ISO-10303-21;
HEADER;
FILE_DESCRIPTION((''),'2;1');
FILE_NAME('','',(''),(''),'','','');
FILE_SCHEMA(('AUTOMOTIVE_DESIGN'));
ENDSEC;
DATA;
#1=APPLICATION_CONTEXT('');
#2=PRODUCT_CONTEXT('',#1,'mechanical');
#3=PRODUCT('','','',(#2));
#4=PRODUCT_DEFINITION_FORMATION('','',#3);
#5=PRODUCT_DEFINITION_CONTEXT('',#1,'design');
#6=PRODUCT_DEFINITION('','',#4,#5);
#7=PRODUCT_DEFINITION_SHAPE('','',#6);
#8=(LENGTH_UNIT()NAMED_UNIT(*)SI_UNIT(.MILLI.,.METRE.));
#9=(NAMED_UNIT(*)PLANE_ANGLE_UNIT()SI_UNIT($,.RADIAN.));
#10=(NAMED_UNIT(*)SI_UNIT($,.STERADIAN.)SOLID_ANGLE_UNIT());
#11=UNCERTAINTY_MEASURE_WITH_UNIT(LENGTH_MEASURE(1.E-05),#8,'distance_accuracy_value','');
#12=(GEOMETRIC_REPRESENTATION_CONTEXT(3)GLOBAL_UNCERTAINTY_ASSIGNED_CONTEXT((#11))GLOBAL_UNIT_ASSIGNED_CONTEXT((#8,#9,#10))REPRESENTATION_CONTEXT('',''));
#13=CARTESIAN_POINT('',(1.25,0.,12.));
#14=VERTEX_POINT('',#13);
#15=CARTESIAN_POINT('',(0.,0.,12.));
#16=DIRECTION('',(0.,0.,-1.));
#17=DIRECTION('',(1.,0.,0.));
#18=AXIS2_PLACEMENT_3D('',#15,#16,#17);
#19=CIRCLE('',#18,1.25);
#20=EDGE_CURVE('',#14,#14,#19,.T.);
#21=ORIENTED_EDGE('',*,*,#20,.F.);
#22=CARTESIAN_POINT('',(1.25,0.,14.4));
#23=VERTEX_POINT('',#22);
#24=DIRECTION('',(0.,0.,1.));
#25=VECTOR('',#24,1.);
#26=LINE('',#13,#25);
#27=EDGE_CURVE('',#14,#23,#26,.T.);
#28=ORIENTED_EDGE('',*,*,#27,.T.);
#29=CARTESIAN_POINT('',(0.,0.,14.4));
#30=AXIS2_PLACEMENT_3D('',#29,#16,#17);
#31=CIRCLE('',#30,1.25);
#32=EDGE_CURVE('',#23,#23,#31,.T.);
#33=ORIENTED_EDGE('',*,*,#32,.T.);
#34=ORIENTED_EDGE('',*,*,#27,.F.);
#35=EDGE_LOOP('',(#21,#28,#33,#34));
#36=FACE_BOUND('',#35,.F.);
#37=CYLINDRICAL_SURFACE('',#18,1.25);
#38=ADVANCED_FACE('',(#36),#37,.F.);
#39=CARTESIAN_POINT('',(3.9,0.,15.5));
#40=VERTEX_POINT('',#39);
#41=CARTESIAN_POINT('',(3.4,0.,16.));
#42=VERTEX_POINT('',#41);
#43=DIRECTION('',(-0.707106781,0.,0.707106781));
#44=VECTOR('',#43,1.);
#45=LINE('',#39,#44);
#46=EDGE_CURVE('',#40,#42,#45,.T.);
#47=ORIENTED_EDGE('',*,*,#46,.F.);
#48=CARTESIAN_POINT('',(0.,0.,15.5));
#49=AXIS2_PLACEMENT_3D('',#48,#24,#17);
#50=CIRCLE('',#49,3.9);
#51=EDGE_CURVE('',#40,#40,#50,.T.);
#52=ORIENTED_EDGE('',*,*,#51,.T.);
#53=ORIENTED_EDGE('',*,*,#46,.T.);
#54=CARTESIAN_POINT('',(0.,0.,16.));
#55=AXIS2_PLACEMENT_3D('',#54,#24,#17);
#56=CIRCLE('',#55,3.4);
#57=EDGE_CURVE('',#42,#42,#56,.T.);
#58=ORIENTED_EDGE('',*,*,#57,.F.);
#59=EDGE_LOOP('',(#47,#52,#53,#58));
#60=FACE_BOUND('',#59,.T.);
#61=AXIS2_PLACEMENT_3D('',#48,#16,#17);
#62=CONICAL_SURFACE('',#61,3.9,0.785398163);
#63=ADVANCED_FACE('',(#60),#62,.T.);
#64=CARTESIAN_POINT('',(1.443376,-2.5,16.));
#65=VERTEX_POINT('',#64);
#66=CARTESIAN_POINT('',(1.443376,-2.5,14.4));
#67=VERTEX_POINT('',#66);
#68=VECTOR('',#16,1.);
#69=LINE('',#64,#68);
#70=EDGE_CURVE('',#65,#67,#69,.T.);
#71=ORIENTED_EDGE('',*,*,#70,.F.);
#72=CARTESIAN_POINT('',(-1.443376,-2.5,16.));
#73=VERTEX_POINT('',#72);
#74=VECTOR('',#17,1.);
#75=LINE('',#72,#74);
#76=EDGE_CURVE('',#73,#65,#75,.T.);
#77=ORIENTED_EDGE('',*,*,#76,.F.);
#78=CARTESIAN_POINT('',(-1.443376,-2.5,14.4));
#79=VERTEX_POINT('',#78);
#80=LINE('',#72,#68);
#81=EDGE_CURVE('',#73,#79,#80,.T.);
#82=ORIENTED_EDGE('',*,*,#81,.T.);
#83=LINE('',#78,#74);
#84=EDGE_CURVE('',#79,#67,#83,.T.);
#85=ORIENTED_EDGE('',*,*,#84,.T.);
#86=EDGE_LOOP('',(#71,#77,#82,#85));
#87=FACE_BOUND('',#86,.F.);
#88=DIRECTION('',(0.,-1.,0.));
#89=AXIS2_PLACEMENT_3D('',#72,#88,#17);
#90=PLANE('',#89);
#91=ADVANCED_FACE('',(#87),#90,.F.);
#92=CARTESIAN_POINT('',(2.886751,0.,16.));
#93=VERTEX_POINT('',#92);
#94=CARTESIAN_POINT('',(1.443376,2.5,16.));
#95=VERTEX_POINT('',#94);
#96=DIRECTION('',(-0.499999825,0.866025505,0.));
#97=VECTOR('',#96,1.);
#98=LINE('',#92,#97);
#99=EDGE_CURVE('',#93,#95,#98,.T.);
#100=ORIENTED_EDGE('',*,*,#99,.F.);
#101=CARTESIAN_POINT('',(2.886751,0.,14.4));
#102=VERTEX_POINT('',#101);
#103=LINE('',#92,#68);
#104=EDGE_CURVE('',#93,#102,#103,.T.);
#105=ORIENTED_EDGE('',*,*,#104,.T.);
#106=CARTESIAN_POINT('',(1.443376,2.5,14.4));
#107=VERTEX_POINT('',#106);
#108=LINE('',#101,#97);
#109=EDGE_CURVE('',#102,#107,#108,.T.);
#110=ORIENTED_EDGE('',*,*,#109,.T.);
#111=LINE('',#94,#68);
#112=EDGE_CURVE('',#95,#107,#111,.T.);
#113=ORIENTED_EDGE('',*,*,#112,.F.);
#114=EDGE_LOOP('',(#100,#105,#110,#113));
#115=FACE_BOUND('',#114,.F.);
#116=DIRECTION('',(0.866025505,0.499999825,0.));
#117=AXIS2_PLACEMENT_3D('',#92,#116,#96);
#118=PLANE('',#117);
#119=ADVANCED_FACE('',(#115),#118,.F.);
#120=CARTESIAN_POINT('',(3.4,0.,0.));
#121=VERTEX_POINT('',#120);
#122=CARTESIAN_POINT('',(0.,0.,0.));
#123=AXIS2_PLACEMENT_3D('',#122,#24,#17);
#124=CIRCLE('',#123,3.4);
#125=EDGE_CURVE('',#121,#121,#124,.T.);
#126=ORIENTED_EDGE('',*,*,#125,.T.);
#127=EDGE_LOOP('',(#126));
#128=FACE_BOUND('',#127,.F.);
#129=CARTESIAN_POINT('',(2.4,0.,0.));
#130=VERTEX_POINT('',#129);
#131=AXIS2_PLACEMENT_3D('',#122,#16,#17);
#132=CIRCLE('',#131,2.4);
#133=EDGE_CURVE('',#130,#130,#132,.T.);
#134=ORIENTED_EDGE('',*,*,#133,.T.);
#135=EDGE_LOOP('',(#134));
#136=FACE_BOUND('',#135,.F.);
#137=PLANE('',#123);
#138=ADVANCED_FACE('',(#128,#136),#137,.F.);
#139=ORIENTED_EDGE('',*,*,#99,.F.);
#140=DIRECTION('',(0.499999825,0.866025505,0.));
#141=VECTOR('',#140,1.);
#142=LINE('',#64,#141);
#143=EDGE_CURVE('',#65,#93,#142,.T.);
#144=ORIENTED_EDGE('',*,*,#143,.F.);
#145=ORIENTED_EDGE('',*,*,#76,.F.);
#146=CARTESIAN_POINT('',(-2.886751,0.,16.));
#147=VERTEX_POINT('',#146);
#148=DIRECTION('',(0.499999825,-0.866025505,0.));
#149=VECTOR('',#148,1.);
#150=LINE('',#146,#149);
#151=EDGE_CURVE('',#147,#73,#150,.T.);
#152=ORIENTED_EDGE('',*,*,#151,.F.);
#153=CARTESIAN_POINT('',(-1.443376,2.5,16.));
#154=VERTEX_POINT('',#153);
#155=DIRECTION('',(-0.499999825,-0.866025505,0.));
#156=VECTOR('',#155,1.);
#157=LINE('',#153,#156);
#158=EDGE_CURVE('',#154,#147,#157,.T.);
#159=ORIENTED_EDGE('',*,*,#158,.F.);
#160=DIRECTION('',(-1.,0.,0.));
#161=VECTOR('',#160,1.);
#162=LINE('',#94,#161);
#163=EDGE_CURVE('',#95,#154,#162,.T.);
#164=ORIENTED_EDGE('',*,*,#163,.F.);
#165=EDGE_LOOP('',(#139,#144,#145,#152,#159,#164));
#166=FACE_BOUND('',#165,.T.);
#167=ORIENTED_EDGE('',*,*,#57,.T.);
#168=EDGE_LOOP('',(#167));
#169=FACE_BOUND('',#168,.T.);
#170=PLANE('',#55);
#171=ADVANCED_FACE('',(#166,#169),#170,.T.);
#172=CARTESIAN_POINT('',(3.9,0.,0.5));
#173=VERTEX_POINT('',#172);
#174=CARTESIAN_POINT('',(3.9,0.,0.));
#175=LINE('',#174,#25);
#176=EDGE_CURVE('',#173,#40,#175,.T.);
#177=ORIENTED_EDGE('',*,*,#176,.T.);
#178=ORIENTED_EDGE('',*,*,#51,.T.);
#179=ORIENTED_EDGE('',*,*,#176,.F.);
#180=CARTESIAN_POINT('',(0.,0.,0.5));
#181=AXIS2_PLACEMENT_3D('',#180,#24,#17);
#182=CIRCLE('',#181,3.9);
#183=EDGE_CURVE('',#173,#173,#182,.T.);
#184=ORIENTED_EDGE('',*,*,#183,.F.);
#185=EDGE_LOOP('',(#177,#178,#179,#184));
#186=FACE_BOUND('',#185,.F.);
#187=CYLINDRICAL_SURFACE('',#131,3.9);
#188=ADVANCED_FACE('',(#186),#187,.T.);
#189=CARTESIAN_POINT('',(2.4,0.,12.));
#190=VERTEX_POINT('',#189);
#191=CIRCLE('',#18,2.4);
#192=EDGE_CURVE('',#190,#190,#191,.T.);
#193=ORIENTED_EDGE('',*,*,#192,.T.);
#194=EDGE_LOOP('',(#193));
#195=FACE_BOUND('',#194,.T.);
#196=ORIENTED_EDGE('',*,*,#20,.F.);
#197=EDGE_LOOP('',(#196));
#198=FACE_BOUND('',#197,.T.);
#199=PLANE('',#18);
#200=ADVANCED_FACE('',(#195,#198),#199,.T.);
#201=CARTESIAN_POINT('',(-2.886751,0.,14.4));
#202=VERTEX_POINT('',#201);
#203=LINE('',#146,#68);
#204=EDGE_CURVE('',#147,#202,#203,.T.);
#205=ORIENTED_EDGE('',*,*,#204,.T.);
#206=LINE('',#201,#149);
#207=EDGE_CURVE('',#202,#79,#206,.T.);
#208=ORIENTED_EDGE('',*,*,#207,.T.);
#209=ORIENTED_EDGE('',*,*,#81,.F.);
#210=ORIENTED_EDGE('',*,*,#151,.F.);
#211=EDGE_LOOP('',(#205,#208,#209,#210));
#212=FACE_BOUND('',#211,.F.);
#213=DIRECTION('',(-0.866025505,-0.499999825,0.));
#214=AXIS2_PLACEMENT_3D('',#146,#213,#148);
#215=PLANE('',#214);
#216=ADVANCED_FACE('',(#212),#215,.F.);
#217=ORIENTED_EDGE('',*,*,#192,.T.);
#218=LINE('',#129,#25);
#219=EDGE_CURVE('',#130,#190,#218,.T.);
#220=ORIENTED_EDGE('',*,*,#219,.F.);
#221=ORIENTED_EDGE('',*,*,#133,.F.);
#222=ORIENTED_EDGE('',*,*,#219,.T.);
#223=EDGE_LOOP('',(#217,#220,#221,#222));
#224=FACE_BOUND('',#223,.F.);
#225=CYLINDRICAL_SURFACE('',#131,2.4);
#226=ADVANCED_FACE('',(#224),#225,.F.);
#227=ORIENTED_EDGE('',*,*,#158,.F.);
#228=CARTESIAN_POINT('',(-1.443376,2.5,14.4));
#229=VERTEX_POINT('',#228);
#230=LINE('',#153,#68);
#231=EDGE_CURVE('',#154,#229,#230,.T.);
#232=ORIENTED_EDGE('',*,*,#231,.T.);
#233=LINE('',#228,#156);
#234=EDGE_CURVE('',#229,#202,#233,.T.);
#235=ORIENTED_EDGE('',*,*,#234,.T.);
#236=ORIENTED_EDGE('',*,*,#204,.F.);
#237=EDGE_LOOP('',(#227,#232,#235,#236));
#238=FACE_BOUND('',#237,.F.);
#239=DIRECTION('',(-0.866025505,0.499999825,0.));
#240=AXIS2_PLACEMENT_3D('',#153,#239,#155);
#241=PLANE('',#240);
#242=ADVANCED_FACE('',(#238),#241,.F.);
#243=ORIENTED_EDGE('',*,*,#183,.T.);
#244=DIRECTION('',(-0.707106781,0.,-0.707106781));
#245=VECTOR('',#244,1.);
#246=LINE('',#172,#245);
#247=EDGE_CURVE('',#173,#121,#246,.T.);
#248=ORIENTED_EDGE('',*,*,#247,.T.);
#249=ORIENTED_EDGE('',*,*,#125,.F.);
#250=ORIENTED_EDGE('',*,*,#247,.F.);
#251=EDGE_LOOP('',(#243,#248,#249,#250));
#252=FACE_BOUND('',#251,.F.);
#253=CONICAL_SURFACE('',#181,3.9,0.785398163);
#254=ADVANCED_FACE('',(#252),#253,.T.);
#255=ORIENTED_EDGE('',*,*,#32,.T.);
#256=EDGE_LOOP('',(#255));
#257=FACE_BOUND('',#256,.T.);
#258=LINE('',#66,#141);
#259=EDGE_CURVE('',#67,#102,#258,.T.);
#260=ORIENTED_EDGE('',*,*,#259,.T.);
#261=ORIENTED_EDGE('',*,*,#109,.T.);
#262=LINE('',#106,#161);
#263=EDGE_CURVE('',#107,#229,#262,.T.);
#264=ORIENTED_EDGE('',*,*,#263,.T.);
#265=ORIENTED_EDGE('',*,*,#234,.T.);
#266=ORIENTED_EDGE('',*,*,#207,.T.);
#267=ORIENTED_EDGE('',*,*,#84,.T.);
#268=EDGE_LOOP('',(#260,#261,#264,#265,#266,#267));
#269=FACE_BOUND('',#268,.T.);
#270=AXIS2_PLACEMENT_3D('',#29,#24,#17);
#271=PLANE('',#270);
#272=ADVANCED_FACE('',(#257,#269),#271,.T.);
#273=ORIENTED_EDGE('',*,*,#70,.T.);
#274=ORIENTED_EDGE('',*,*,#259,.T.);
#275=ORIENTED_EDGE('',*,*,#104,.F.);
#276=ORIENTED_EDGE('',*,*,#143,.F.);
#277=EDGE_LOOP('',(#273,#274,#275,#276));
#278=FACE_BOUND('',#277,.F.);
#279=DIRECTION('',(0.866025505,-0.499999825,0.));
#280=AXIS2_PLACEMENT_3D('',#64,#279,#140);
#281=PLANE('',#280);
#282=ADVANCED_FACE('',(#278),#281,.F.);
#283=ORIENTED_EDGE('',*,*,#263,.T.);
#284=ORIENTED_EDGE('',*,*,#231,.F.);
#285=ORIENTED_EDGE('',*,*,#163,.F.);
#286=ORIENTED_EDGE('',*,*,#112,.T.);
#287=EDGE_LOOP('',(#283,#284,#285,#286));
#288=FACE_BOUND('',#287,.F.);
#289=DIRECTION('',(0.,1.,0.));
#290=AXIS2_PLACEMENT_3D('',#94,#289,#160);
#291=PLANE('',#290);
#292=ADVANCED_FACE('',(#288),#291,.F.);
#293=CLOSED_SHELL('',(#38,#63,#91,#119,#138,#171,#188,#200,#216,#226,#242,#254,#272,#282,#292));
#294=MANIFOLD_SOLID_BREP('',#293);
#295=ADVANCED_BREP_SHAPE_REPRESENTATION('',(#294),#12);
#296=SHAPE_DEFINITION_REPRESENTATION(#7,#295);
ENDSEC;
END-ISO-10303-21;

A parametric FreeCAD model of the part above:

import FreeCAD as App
import Part
import Sketcher

V = App.Vector
Q = App.Units.Quantity


def edges_at(feature, points):
    """Names of the edges that pass closest to the given points."""
    edges = feature.Shape.Edges
    near = lambda p: min(range(len(edges)), key=lambda i: edges[i].distToShape(Part.Vertex(*p))[0])
    return sorted({f"Edge{near(p) + 1}" for p in points})

doc = App.newDocument("Part")
params = doc.addObject("Spreadsheet::Sheet", "Params")
for row, (alias, value) in enumerate([
    ("sketch1_diameter", "7.8 mm"),
    ("pad1_length", "16 mm"),
    ("sketch2_diameter", "4.8 mm"),
    ("pocket1_length", "12 mm"),
    ("sketch3_diameter", "2.5 mm"),
    ("chamfer_size", "0.5 mm"),
    ("chamfer2_size", "0.5 mm"),
    ("pocket3_length", "1.6 mm"),
], start=1):
    params.set(f"A{row}", alias)
    params.set(f"B{row}", "=" + value)
    params.setAlias(f"B{row}", alias)

body = doc.addObject("PartDesign::Body", "Body")

# Sketch on XY plane
sketch1 = doc.addObject("Sketcher::SketchObject", "Sketch")
body.addObject(sketch1)
sketch1.AttachmentSupport = (doc.XY_Plane, [""])
sketch1.MapMode = "FlatFace"
sketch1.addGeometry(Part.Circle(V(0, 0, 0), V(0, 0, 1), 3.9), False)
sketch1.addConstraint(Sketcher.Constraint("Coincident", 0, 3, -1, 1))
sketch1.addConstraint(Sketcher.Constraint("Diameter", 0, 7.8))
sketch1.setExpression("Constraints[1]", "Params.sketch1_diameter")
pad1 = doc.addObject("PartDesign::Pad", "Pad")
body.addObject(pad1)
pad1.Profile = sketch1
pad1.setExpression("Length", "Params.pad1_length")

# Sketch on XY plane
sketch2 = doc.addObject("Sketcher::SketchObject", "Sketch001")
body.addObject(sketch2)
sketch2.AttachmentSupport = (doc.XY_Plane, [""])
sketch2.MapMode = "FlatFace"
sketch2.addGeometry(Part.Circle(V(0, 0, 0), V(0, 0, 1), 2.4), False)
sketch2.addConstraint(Sketcher.Constraint("Coincident", 0, 3, -1, 1))
sketch2.addConstraint(Sketcher.Constraint("Diameter", 0, 4.8))
sketch2.setExpression("Constraints[1]", "Params.sketch2_diameter")
pocket1 = doc.addObject("PartDesign::Pocket", "Pocket")
body.addObject(pocket1)
pocket1.Profile = sketch2
pocket1.setExpression("Length", "Params.pocket1_length")
pocket1.Reversed = True

# Sketch on XY plane
sketch3 = doc.addObject("Sketcher::SketchObject", "Sketch002")
body.addObject(sketch3)
sketch3.AttachmentSupport = (doc.XY_Plane, [""])
sketch3.MapMode = "FlatFace"
sketch3.AttachmentOffset = App.Placement(V(0, 0, 12), App.Rotation())
sketch3.addGeometry(Part.Circle(V(0, 0, 0), V(0, 0, 1), 1.25), False)
sketch3.addConstraint(Sketcher.Constraint("Coincident", 0, 3, -1, 1))
sketch3.addConstraint(Sketcher.Constraint("Diameter", 0, 2.5))
sketch3.setExpression("Constraints[1]", "Params.sketch3_diameter")
pocket2 = doc.addObject("PartDesign::Pocket", "Pocket001")
body.addObject(pocket2)
pocket2.Profile = sketch3
pocket2.Type = "ThroughAll"
pocket2.Reversed = True
doc.recompute()

chamfer = doc.addObject("PartDesign::Chamfer", "Chamfer")
body.addObject(chamfer)
chamfer.Base = (pocket2, edges_at(pocket2, [(-3.9, 0, 16)]))
chamfer.setExpression("Size", "Params.chamfer_size")
doc.recompute()

chamfer2 = doc.addObject("PartDesign::Chamfer", "Chamfer001")
body.addObject(chamfer2)
chamfer2.Base = (chamfer, edges_at(chamfer, [(-3.9, 0, 0)]))
chamfer2.setExpression("Size", "Params.chamfer2_size")

# Sketch on XY plane
sketch4 = doc.addObject("Sketcher::SketchObject", "Sketch003")
body.addObject(sketch4)
sketch4.AttachmentSupport = (doc.XY_Plane, [""])
sketch4.MapMode = "FlatFace"
sketch4.AttachmentOffset = App.Placement(V(0, 0, 16), App.Rotation())
sketch4.addGeometry(Part.LineSegment(V(-2.886751, 0, 0), V(-1.443376, -2.5, 0)), False)
sketch4.addGeometry(Part.LineSegment(V(-1.443376, -2.5, 0), V(1.443376, -2.5, 0)), False)
sketch4.addGeometry(Part.LineSegment(V(1.443376, -2.5, 0), V(2.886751, 0, 0)), False)
sketch4.addGeometry(Part.LineSegment(V(2.886751, 0, 0), V(1.443376, 2.5, 0)), False)
sketch4.addGeometry(Part.LineSegment(V(1.443376, 2.5, 0), V(-1.443376, 2.5, 0)), False)
sketch4.addGeometry(Part.LineSegment(V(-1.443376, 2.5, 0), V(-2.886751, 0, 0)), False)
sketch4.addConstraint(Sketcher.Constraint("Coincident", 0, 2, 1, 1))
sketch4.addConstraint(Sketcher.Constraint("Coincident", 1, 2, 2, 1))
sketch4.addConstraint(Sketcher.Constraint("Coincident", 2, 2, 3, 1))
sketch4.addConstraint(Sketcher.Constraint("Coincident", 3, 2, 4, 1))
sketch4.addConstraint(Sketcher.Constraint("Coincident", 4, 2, 5, 1))
sketch4.addConstraint(Sketcher.Constraint("Coincident", 5, 2, 0, 1))
sketch4.addConstraint(Sketcher.Constraint("Horizontal", 1))
sketch4.addConstraint(Sketcher.Constraint("Horizontal", 4))
sketch4.addConstraint(Sketcher.Constraint("Symmetric", 0, 2, 3, 2, -1, 1))
sketch4.addConstraint(Sketcher.Constraint("Symmetric", 2, 2, 5, 2, -1, 1))
sketch4.addConstraint(Sketcher.Constraint("PointOnObject", 2, 2, -1))
sketch4.addConstraint(Sketcher.Constraint("Parallel", 2, 5))
sketch4.addConstraint(Sketcher.Constraint("Vertical", 1, 2, 3, 2))
sketch4.addConstraint(Sketcher.Constraint("Angle", 0, Q("-60.000012 deg")))
sketch4.addConstraint(Sketcher.Constraint("DistanceY", 1, 2, 3, 2, 5.0))
sketch4.addConstraint(Sketcher.Constraint("DistanceX", 1, 1, 1, 2, 2.886752))
pocket3 = doc.addObject("PartDesign::Pocket", "Pocket002")
body.addObject(pocket3)
pocket3.Profile = sketch4
pocket3.setExpression("Length", "Params.pocket3_length")

doc.recompute()
